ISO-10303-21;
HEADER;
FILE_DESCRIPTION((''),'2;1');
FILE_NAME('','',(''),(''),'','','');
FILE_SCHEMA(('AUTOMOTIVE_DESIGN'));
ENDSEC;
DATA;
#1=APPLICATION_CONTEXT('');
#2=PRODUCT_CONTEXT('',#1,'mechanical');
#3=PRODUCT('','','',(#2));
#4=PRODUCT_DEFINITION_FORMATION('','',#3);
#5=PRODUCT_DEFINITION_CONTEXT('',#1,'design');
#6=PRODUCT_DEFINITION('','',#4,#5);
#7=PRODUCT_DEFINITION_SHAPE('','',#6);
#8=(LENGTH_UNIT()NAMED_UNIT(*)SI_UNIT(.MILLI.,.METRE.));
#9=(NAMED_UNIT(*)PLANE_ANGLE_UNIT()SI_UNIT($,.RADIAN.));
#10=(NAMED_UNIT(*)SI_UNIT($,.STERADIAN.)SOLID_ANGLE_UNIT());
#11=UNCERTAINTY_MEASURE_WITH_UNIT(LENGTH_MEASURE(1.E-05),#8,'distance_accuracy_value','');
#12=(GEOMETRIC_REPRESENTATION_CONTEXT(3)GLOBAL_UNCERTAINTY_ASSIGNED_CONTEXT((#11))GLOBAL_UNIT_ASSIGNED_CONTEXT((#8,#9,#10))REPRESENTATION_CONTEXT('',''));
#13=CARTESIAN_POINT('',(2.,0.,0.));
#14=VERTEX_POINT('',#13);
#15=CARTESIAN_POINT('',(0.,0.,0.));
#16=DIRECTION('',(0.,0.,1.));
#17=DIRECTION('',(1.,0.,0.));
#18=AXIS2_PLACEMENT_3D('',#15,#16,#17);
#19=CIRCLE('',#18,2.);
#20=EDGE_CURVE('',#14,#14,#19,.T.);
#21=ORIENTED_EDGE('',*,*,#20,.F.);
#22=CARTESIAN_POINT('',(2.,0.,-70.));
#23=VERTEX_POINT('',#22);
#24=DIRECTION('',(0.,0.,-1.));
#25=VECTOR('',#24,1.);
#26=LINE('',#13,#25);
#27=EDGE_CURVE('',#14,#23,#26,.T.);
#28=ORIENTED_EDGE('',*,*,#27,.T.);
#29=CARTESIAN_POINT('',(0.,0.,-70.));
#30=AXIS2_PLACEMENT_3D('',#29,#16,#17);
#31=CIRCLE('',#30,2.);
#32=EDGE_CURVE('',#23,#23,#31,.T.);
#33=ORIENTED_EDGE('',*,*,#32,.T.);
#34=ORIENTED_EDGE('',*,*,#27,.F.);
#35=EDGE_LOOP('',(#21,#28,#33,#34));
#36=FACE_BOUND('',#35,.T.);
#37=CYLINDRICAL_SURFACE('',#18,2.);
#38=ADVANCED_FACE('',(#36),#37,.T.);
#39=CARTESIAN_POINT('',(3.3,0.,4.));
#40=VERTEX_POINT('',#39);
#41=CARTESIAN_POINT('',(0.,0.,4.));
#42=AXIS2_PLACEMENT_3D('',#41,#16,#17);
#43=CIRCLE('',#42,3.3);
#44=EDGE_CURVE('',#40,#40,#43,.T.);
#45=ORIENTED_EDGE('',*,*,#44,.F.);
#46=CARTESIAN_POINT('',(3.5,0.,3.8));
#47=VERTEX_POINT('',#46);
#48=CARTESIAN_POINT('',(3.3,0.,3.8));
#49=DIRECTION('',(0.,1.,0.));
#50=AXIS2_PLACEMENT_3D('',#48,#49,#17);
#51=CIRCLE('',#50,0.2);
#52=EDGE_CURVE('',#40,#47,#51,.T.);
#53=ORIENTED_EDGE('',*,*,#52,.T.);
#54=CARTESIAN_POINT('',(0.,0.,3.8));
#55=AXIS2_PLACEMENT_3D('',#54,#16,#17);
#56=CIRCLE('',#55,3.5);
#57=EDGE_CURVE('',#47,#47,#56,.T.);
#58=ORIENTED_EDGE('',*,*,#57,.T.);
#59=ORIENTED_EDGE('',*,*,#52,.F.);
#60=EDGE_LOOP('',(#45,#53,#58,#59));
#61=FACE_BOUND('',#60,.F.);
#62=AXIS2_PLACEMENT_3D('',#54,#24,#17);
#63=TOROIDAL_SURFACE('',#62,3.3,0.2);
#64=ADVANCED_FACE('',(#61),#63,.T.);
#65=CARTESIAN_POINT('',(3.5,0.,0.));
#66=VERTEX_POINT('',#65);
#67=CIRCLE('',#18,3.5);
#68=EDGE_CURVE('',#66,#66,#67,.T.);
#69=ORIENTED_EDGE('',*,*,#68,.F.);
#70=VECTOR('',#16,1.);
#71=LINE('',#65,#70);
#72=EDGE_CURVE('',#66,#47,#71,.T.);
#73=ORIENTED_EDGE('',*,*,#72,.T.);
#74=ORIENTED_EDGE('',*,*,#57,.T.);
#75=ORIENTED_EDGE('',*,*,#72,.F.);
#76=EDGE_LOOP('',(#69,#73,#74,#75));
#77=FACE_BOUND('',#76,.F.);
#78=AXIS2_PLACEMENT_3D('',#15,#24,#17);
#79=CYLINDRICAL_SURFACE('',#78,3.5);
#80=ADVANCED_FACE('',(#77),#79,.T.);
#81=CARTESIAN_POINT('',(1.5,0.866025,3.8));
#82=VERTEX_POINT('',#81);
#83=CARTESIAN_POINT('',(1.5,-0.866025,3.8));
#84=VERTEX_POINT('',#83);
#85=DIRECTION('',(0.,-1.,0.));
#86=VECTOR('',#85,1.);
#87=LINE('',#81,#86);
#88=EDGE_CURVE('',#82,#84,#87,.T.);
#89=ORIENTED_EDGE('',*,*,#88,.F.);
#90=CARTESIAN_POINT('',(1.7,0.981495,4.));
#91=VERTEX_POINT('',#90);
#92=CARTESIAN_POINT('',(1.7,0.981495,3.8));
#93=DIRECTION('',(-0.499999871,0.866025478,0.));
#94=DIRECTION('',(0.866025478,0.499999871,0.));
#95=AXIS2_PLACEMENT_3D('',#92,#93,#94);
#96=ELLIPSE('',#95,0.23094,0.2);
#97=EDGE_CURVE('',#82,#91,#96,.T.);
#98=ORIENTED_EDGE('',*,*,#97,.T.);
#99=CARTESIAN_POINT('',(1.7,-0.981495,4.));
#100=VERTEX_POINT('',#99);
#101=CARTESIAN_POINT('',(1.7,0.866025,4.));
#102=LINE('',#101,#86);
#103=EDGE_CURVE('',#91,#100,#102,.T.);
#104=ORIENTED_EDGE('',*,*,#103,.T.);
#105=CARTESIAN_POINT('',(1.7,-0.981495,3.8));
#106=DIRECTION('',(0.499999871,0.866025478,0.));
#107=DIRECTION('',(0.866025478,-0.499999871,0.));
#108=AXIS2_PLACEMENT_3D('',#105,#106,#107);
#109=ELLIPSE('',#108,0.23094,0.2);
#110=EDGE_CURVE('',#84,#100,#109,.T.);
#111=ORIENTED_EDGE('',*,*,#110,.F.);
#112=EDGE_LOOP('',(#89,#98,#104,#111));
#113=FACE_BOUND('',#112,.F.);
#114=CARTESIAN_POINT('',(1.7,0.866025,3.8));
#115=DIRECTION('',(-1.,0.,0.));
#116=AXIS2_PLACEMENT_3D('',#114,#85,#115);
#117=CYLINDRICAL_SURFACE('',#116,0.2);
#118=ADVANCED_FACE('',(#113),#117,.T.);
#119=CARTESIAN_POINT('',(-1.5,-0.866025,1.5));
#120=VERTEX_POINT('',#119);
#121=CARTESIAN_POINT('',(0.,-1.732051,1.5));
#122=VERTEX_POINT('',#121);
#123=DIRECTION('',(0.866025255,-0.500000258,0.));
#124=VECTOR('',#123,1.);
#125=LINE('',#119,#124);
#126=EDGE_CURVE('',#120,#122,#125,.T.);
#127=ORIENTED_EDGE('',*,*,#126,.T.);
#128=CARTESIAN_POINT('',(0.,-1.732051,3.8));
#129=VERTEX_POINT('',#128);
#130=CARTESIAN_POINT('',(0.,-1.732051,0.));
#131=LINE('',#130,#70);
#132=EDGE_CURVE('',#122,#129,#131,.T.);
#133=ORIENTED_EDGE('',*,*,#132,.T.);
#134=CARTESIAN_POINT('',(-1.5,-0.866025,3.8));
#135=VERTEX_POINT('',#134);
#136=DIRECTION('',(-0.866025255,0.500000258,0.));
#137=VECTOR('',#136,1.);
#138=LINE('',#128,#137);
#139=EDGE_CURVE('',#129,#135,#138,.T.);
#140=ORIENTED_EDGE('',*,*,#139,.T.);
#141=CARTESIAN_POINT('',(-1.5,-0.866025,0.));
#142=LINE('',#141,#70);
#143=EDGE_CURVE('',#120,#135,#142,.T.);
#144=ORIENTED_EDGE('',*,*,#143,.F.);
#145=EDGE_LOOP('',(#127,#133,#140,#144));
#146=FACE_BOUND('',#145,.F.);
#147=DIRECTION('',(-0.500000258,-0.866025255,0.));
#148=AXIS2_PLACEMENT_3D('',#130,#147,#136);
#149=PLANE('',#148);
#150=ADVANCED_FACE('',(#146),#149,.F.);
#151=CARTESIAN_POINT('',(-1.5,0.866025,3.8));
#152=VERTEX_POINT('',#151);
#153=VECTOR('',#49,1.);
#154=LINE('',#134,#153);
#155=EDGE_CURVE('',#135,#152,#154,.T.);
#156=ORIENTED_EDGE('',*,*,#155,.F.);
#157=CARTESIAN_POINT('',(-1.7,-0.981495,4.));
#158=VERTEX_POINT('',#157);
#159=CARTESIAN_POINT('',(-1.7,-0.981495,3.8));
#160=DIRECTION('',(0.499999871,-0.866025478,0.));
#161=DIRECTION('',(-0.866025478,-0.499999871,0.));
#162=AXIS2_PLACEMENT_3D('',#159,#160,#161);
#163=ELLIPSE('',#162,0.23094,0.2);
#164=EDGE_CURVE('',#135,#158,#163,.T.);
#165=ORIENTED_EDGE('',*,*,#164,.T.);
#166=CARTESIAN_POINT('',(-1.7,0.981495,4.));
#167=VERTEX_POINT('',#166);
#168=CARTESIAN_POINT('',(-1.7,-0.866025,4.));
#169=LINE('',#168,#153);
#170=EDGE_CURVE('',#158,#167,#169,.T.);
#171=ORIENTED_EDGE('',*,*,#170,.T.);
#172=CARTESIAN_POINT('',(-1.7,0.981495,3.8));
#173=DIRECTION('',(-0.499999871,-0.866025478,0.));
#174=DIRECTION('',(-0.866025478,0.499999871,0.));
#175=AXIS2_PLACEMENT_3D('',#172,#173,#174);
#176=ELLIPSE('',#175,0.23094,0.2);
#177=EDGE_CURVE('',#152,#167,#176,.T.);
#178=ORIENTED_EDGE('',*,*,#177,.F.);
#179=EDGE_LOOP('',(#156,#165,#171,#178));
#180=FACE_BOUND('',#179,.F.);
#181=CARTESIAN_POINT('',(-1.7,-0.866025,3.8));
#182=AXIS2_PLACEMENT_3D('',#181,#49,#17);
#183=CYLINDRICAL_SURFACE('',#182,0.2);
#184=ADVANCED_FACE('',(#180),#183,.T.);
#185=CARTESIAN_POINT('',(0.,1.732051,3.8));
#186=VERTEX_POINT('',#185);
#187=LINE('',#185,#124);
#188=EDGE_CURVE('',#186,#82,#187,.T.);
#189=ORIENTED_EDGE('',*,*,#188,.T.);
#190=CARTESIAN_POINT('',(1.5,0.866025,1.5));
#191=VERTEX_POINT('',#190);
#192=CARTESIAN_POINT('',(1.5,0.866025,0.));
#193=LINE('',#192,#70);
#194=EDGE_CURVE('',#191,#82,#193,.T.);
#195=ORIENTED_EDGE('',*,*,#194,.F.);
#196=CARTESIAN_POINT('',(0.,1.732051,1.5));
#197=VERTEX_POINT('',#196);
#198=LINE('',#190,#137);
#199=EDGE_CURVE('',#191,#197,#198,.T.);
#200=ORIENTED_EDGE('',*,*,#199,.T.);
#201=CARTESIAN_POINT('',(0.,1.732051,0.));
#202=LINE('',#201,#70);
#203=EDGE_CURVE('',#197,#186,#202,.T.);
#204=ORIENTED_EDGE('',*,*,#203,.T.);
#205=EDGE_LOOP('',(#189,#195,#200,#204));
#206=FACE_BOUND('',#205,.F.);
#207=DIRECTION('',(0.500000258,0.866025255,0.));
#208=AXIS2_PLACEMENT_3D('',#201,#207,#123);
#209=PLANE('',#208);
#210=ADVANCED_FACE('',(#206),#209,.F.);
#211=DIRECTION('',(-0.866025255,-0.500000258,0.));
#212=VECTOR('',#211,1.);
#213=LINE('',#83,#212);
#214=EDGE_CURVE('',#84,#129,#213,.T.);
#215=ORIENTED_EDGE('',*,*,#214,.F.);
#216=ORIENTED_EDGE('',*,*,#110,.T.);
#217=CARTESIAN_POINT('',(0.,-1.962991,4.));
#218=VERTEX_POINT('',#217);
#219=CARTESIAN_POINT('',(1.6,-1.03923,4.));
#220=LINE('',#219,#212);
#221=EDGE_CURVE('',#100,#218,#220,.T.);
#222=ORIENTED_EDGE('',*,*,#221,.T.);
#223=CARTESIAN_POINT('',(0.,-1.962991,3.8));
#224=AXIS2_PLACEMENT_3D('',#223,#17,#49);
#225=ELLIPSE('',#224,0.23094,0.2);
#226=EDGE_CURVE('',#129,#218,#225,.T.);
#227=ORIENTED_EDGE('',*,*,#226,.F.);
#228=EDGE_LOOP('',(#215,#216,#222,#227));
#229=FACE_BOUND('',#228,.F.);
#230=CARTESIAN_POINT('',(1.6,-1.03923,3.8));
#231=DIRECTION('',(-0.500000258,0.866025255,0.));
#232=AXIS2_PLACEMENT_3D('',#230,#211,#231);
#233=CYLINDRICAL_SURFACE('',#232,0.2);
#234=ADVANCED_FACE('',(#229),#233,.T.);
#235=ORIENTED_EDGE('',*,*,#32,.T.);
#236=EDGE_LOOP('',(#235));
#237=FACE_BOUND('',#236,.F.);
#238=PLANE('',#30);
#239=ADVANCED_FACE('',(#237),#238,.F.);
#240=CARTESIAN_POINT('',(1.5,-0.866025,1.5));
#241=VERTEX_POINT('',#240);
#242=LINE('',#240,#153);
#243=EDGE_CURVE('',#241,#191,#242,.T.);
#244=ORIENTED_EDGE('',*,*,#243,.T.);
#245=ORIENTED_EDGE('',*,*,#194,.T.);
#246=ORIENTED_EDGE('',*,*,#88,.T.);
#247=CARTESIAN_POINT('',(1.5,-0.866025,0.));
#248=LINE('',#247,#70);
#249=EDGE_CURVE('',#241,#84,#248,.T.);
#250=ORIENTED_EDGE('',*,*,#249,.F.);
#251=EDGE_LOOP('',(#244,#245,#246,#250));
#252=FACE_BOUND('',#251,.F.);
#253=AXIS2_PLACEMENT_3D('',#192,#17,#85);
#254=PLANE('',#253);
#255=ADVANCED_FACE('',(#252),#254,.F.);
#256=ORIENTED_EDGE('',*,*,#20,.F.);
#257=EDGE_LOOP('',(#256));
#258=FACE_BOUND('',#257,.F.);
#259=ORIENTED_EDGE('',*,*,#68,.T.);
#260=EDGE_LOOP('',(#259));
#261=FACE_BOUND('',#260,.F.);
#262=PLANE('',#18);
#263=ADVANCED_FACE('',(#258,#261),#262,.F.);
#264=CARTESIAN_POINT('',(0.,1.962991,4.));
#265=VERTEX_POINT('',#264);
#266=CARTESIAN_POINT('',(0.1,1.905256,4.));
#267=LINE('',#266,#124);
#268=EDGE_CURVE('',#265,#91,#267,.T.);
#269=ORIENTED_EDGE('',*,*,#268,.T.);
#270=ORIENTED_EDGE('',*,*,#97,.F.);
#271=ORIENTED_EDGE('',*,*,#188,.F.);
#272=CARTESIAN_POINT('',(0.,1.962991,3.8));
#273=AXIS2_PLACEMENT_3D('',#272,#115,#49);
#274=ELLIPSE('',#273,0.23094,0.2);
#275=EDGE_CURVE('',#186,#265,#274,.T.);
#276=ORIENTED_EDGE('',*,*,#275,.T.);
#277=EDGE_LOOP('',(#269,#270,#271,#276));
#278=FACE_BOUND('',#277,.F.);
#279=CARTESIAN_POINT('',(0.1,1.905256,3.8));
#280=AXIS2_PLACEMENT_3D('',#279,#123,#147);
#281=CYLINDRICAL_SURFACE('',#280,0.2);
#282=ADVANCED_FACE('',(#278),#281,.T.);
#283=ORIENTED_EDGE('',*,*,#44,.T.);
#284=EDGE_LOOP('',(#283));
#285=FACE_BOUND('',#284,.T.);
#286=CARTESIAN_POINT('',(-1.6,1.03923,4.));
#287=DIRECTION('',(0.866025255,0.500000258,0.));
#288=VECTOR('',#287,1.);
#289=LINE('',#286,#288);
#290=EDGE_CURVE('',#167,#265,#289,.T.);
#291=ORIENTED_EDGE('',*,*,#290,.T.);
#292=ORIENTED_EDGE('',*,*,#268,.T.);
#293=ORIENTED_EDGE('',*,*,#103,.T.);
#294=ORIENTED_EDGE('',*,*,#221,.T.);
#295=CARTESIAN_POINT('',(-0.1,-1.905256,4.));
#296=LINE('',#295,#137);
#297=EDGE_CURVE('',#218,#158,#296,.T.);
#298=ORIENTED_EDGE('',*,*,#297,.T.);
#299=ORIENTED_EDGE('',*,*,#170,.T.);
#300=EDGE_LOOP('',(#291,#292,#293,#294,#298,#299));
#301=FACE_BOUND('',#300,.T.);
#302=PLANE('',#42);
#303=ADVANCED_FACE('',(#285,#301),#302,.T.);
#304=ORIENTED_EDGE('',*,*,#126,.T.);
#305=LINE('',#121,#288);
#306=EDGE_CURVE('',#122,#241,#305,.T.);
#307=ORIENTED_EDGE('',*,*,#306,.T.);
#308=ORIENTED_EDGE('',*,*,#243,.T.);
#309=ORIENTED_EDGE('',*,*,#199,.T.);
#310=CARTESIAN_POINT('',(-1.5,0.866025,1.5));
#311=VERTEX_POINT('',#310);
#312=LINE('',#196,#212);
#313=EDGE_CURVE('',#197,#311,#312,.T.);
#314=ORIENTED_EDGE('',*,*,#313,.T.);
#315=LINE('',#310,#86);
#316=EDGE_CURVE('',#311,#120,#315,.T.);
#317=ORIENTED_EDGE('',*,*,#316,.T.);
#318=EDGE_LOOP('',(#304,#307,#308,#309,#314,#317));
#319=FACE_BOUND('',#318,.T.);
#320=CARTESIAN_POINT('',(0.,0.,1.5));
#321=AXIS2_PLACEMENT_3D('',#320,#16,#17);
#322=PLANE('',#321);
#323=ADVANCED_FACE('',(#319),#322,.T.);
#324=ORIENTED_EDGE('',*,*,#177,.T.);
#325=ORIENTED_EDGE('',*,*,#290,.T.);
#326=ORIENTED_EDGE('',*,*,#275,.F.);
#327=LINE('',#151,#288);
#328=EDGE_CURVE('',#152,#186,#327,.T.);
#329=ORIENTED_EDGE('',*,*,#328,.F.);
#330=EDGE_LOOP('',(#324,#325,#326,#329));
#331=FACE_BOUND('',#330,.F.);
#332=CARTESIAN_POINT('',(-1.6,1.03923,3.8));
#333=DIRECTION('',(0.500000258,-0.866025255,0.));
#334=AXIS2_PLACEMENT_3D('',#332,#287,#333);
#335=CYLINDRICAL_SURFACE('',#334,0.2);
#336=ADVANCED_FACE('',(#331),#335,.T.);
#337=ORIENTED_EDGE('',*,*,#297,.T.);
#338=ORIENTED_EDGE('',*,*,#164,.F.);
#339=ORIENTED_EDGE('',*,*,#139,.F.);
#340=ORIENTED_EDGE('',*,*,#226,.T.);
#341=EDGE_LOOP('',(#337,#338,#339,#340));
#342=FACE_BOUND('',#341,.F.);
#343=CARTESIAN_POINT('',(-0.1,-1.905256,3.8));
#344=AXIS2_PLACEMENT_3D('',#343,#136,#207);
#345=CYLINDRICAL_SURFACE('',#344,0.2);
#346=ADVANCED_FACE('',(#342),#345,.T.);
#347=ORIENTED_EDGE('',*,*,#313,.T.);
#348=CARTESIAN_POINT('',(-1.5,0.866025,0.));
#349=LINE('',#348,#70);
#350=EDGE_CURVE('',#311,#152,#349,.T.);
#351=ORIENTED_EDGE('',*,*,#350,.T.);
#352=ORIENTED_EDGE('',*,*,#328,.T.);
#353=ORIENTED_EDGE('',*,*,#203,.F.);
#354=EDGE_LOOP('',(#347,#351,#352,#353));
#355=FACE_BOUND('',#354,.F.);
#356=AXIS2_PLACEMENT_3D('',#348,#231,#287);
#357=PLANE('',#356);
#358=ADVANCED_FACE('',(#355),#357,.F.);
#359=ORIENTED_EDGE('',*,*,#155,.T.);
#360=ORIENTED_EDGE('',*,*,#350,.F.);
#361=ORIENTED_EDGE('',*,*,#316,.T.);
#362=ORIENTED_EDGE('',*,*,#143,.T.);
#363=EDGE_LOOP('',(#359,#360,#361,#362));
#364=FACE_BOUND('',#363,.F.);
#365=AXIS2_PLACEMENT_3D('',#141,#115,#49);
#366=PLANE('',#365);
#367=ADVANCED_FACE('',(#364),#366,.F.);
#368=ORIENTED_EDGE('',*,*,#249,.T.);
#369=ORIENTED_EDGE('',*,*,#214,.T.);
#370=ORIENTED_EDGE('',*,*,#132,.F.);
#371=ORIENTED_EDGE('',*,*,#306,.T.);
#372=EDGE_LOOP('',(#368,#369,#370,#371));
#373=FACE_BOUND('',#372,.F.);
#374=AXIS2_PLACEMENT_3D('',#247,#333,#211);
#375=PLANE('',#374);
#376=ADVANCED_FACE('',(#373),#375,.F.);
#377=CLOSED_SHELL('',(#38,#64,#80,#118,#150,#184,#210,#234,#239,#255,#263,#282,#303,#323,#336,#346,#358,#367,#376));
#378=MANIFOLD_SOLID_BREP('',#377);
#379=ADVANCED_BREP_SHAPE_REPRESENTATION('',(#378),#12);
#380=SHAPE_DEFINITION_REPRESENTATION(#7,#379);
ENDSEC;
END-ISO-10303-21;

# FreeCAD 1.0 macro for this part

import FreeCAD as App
import Part
import Sketcher
Q = App.Units.Quantity


def edges_at(feature, points):
    """Names of the edges that pass closest to the given points."""
    edges = feature.Shape.Edges
    near = lambda p: min(range(len(edges)), key=lambda i: edges[i].distToShape(Part.Vertex(*p))[0])
    return sorted({f"Edge{near(p) + 1}" for p in points})


def add_polygon(sketch, points):
    """Adds a closed chain of lines whose ends are joined by coincident constraints."""
    first, n = sketch.GeometryCount, len(points)
    for a, b in zip(points, points[1:] + points[:1]):
        sketch.addGeometry(Part.LineSegment(App.Vector(*a, 0), App.Vector(*b, 0)), False)
    for i in range(n):
        sketch.addConstraint(Sketcher.Constraint("Coincident", first + i, 2, first + (i + 1) % n, 1))

doc = App.newDocument("Part")
body = doc.addObject("PartDesign::Body", "Body")

# Sketch on XY plane
sketch1 = body.newObject("Sketcher::SketchObject", "Sketch")
sketch1.AttachmentSupport = (doc.getObject("XY_Plane"), [""])
sketch1.MapMode = "FlatFace"
sketch1.addGeometry(Part.Circle(App.Vector(0, 0, 0), App.Vector(0, 0, 1), 3.5), False)  # 0
add_polygon(sketch1, [(-1.5, 0.866025), (0, 1.732051), (1.5, 0.866025), (1.5, -0.866025), (0, -1.732051), (-1.5, -0.866025)])  # lines 1-6
sketch1.addConstraint([
    Sketcher.Constraint("Vertical", 3),
    Sketcher.Constraint("Vertical", 6),
    Sketcher.Constraint("Coincident", 0, 3, -1, 1),
    Sketcher.Constraint("Symmetric", 1, 2, 4, 2, -1, 1),
    Sketcher.Constraint("Symmetric", 2, 2, 5, 2, -1, 1),
    Sketcher.Constraint("PointOnObject", 1, 2, -2),
    Sketcher.Constraint("Parallel", 1, 4),
    Sketcher.Constraint("Horizontal", 3, 2, 5, 2),
    Sketcher.Constraint("Diameter", 0, 7.0),
    Sketcher.Constraint("Angle", 1, Q("30.000017 deg")),
    Sketcher.Constraint("DistanceX", 5, 2, 3, 2, 3.0),
    Sketcher.Constraint("DistanceY", 3, 2, 3, 1, 1.73205),
])
pad1 = body.newObject("PartDesign::Pad", "Pad")
pad1.Profile = sketch1
pad1.Length = 4

# Sketch on XY plane
sketch2 = body.newObject("Sketcher::SketchObject", "Sketch001")
sketch2.AttachmentSupport = (doc.getObject("XY_Plane"), [""])
sketch2.MapMode = "FlatFace"
sketch2.addGeometry(Part.Circle(App.Vector(0, 0, 0), App.Vector(0, 0, 1), 2), False)
sketch2.addConstraint([
    Sketcher.Constraint("Coincident", 0, 3, -1, 1),
    Sketcher.Constraint("Diameter", 0, 4.0),
])
pad2 = body.newObject("PartDesign::Pad", "Pad001")
pad2.Profile = sketch2
pad2.Length = 70
pad2.Reversed = True

# Sketch on XY plane
sketch3 = body.newObject("Sketcher::SketchObject", "Sketch002")
sketch3.AttachmentSupport = (doc.getObject("XY_Plane"), [""])
sketch3.MapMode = "FlatFace"
add_polygon(sketch3, [(1.5, -0.866025), (1.5, 0.866025), (0, 1.732051), (-1.5, 0.866025), (-1.5, -0.866025), (0, -1.732051)])  # lines 0-5
sketch3.addConstraint([
    Sketcher.Constraint("Vertical", 0),
    Sketcher.Constraint("Vertical", 3),
    Sketcher.Constraint("Symmetric", 0, 2, 3, 2, -1, 1),
    Sketcher.Constraint("Symmetric", 1, 2, 4, 2, -1, 1),
    Sketcher.Constraint("PointOnObject", 1, 2, -2),
    Sketcher.Constraint("Parallel", 2, 5),
    Sketcher.Constraint("Horizontal", 0, 2, 2, 2),
    Sketcher.Constraint("Angle", 1, Q("149.999983 deg")),
    Sketcher.Constraint("DistanceX", 2, 2, 0, 2, 3.0),
    Sketcher.Constraint("DistanceY", 0, 1, 0, 2, 1.73205),
])
pad3 = body.newObject("PartDesign::Pad", "Pad002")
pad3.Profile = sketch3
pad3.Length = 1.5
doc.recompute()

fillet = body.newObject("PartDesign::Fillet", "Fillet")
fillet.Base = (pad3, edges_at(pad3, [
    (-3.5, 0, 4),
    (-0.75, -1.299, 4),
    (-1.5, 0, 4),
    (-0.75, 1.299, 4),
    (0.75, 1.299, 4),
    (1.5, 0, 4),
    (0.75, -1.299, 4),
]))
fillet.Radius = 0.2

doc.recompute()
